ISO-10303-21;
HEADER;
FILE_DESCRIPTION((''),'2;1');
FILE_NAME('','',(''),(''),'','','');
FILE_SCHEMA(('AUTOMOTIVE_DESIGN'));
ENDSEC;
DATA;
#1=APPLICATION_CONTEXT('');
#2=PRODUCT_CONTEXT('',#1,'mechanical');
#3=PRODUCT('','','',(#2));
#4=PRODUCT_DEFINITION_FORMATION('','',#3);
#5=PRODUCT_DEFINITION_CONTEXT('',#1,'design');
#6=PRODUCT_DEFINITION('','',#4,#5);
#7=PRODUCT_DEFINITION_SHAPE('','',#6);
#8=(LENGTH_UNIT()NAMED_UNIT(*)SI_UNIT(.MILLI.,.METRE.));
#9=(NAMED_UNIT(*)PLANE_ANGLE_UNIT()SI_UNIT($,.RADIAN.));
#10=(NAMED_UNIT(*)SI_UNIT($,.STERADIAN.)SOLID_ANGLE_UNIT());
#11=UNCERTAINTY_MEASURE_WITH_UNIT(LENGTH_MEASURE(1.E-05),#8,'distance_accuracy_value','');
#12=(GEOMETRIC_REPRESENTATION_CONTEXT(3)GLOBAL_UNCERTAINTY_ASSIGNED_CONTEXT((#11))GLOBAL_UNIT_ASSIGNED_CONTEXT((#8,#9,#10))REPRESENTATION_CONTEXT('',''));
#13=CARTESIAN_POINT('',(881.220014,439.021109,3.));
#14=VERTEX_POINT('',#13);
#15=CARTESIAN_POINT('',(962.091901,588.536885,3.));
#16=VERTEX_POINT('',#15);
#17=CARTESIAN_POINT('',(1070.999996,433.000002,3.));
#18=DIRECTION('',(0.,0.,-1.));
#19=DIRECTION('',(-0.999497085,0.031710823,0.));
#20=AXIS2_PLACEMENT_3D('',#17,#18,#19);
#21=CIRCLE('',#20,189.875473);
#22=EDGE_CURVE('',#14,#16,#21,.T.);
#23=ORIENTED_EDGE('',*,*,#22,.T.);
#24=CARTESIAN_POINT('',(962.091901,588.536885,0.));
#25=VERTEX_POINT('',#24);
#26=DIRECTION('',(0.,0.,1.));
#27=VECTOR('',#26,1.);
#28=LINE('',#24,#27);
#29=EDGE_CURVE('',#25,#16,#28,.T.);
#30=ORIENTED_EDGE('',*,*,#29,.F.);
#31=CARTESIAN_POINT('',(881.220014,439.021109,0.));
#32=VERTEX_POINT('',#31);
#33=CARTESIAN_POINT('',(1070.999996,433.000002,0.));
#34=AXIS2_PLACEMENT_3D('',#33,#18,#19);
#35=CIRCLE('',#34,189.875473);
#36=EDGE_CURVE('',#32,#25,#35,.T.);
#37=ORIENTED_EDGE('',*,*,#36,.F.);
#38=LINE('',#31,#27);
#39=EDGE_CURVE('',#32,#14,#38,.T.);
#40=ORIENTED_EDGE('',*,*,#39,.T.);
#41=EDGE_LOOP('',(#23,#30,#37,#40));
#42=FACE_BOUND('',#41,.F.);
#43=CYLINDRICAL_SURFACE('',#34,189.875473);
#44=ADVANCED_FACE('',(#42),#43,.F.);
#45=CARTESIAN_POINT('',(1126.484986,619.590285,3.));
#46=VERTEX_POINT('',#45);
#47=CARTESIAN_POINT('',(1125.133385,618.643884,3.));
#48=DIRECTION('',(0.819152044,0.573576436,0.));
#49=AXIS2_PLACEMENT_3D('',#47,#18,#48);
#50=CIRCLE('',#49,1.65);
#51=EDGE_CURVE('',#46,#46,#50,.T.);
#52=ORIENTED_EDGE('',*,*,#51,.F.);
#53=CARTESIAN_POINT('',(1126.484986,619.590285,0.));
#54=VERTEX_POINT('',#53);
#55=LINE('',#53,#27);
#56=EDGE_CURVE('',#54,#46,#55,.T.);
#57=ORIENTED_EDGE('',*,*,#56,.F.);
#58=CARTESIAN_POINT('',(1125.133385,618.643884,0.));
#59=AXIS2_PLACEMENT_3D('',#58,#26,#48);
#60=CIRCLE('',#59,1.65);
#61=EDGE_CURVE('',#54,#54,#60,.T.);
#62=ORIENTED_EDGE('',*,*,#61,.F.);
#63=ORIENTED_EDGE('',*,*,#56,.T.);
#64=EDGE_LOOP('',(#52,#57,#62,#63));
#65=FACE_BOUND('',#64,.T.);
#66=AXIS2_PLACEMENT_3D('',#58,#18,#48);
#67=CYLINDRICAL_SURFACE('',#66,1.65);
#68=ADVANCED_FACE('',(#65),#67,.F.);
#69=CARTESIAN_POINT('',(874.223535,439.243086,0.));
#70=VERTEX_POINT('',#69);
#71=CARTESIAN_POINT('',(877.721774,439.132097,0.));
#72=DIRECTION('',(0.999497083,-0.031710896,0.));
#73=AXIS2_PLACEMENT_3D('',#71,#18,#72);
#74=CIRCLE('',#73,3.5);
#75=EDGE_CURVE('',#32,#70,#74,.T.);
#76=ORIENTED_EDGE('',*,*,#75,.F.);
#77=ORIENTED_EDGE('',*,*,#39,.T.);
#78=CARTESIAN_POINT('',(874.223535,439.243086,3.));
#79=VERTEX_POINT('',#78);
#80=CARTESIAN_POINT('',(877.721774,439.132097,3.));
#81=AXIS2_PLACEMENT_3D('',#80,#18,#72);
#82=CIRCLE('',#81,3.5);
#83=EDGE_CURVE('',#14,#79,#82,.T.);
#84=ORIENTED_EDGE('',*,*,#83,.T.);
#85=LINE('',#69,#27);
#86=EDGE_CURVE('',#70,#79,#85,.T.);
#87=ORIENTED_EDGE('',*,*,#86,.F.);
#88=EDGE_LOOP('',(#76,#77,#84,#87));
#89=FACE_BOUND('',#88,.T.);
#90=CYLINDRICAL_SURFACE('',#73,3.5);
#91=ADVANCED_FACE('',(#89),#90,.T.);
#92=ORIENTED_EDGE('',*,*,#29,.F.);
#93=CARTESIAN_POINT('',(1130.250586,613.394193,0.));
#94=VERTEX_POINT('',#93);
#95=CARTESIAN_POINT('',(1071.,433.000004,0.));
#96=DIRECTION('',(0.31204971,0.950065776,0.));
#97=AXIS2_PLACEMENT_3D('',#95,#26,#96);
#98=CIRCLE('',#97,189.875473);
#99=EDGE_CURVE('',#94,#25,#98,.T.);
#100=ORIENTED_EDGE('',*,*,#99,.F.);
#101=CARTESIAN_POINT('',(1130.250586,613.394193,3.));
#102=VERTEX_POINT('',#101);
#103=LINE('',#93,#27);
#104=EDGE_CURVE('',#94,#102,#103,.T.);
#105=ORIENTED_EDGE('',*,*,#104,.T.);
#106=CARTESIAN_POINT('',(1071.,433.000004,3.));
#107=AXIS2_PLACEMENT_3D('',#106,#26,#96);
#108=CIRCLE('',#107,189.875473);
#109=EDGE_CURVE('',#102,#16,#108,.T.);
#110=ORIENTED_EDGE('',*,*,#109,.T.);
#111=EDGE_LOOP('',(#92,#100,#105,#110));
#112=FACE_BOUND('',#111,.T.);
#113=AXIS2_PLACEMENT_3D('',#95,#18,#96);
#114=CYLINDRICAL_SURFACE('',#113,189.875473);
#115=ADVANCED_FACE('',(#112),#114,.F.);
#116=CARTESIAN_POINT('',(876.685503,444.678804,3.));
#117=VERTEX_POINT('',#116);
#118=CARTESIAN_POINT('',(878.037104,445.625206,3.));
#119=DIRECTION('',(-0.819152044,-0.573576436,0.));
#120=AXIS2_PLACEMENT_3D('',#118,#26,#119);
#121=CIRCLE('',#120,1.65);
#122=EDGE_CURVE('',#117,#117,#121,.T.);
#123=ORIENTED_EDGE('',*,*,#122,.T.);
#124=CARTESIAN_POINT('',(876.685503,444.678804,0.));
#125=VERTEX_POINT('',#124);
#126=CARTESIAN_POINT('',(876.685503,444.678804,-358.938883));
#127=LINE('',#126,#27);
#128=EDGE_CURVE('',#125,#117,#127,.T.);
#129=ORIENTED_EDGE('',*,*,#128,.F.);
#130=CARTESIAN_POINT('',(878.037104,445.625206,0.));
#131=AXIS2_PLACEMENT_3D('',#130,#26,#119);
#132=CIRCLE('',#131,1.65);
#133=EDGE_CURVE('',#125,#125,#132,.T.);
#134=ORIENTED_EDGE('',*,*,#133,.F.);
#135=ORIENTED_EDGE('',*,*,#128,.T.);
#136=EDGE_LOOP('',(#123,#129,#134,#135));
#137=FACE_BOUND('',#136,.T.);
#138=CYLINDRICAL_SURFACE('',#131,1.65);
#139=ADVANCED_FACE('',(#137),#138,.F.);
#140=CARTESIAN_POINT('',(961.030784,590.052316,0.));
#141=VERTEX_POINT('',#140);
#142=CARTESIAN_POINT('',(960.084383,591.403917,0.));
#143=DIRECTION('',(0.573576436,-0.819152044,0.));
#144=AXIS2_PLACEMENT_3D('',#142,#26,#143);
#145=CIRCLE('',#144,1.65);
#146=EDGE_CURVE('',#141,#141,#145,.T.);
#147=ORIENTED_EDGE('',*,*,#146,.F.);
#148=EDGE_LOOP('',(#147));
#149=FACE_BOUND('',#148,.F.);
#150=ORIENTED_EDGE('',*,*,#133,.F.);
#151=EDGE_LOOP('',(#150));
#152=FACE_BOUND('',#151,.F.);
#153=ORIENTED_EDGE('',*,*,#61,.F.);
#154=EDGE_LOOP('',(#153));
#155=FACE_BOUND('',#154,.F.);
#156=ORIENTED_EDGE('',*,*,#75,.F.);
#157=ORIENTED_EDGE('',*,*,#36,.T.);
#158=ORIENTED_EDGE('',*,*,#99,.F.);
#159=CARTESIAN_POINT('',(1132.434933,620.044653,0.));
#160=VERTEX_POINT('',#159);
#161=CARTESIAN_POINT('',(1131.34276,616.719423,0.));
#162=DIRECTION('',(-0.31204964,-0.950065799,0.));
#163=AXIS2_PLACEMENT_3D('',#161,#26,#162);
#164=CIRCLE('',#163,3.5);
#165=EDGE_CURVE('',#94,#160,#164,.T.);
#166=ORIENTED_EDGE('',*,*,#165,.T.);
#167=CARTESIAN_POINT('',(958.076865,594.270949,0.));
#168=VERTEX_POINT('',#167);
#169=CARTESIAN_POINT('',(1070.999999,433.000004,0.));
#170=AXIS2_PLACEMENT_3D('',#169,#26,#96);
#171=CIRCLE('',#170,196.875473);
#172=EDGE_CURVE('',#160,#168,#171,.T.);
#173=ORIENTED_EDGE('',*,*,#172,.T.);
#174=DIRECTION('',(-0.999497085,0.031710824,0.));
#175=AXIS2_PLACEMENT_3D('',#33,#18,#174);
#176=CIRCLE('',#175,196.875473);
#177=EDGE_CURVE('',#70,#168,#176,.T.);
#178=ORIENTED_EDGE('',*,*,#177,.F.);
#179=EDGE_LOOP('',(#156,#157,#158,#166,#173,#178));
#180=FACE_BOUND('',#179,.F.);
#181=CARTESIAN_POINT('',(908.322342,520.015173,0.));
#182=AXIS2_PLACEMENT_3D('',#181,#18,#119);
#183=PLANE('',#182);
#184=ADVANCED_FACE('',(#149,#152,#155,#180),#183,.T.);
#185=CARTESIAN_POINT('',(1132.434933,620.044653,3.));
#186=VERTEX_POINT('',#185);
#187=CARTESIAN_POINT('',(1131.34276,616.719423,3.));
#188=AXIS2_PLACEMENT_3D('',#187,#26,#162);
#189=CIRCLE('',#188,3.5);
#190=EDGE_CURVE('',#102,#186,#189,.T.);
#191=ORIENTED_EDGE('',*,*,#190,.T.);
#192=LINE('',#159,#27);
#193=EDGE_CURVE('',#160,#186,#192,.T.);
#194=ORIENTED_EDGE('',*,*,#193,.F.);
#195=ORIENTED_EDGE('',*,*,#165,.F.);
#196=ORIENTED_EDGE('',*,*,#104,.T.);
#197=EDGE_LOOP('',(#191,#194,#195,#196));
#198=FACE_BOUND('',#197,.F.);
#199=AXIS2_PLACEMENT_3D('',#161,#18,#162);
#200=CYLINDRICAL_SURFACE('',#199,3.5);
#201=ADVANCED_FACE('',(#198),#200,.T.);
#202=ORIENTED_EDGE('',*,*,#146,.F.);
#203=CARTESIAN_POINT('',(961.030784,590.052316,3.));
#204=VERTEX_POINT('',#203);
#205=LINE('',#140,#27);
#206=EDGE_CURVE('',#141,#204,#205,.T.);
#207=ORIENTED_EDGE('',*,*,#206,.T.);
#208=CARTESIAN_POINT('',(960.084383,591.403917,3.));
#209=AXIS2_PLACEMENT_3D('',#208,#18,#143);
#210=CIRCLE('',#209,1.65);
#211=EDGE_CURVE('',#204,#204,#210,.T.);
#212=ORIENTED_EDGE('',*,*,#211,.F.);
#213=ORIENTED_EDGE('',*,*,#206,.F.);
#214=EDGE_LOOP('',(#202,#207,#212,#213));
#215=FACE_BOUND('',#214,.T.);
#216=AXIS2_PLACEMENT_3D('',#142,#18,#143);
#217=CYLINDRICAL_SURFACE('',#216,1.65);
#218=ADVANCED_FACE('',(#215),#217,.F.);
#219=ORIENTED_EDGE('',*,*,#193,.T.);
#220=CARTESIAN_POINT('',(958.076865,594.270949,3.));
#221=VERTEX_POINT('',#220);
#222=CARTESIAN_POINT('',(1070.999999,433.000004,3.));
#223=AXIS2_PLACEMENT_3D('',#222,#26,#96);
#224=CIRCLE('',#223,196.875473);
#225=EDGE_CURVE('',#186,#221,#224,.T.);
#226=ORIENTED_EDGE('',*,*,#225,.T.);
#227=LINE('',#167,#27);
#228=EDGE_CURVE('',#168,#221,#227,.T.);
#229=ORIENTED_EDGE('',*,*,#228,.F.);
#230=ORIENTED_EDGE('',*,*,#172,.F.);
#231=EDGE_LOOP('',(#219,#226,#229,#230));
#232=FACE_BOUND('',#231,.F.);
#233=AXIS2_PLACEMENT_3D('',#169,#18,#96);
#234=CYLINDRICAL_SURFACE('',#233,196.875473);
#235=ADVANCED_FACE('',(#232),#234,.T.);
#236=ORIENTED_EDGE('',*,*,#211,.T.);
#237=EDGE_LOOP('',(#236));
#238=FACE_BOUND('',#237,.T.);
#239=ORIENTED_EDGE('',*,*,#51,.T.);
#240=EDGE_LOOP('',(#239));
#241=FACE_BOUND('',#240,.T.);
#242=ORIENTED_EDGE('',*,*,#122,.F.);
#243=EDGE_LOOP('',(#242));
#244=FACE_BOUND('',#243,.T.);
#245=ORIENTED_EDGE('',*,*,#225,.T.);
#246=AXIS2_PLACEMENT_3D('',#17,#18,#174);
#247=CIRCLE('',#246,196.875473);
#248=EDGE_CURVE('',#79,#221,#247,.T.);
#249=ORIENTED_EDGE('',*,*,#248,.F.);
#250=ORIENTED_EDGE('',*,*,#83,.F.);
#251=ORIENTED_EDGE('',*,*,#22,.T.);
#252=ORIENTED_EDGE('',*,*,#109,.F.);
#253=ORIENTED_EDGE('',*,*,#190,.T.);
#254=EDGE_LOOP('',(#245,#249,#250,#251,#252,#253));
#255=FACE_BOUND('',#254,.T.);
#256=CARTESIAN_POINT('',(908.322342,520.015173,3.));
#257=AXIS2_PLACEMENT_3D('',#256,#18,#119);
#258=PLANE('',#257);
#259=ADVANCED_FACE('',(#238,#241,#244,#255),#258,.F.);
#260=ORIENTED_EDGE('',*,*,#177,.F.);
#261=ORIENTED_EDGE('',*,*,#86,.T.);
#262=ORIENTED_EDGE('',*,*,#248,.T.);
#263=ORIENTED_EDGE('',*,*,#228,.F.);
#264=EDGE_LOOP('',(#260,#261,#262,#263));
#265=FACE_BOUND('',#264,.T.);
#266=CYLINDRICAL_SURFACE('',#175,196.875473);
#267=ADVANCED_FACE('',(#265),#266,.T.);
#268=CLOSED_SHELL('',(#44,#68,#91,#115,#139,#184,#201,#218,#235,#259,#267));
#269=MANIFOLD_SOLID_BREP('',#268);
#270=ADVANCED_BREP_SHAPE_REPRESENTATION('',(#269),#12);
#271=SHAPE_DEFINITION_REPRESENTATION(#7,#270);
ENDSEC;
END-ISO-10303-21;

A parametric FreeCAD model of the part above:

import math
import FreeCAD as App
import Part
import Sketcher

V = App.Vector

doc = App.newDocument("Part")
body = doc.addObject("PartDesign::Body", "Body")

# Sketch on XY plane
sketch1 = body.newObject("Sketcher::SketchObject", "Sketch")
sketch1.AttachmentSupport = (doc.getObject("XY_Plane"), [""])
sketch1.MapMode = "FlatFace"
sketch1.addGeometry(Part.ArcOfCircle(Part.Circle(V(0.000002, 0.000004, 0), V(0, 0, 1), 189.875473), math.radians(36.817201), math.radians(90.000001)), False)
sketch1.addGeometry(Part.ArcOfCircle(Part.Circle(V(154.807027, 115.882956, 0), V(0, 0, 1), 3.5), math.radians(-143.182795), math.radians(36.817205)), False)
sketch1.addGeometry(Part.ArcOfCircle(Part.Circle(V(0.000002, 0.000004, 0), V(0, 0, 1), 196.875473), math.radians(36.817201), math.radians(90.000001)), False)
sketch1.addGeometry(Part.LineSegment(V(0, 196.875477, 0), V(0, 189.875477, 0)), False)
sketch1.addConstraint(Sketcher.Constraint("Tangent", 0, 1, 1, 1))
sketch1.addConstraint(Sketcher.Constraint("Tangent", 1, 2, 2, 1))
sketch1.addConstraint(Sketcher.Constraint("Coincident", 2, 2, 3, 1))
sketch1.addConstraint(Sketcher.Constraint("Coincident", 3, 2, 0, 2))
sketch1.addConstraint(Sketcher.Constraint("Vertical", 3))
sketch1.addConstraint(Sketcher.Constraint("Coincident", 0, 3, -1, 1))
sketch1.addConstraint(Sketcher.Constraint("Coincident", 2, 3, -1, 1))
sketch1.addConstraint(Sketcher.Constraint("PointOnObject", 2, 2, -2))
sketch1.addConstraint(Sketcher.Constraint("Radius", 1, 3.5))
sketch1.addConstraint(Sketcher.Constraint("Radius", 0, 189.875473))
sketch1.addConstraint(Sketcher.Constraint("DistanceY", -1, 1, 1, 2, 117.98038))
pad1 = body.newObject("PartDesign::Pad", "Pad")
pad1.Profile = sketch1
pad1.Length = 3

# Sketch on XY plane
sketch2 = body.newObject("Sketcher::SketchObject", "Sketch001")
sketch2.AttachmentSupport = (doc.getObject("XY_Plane"), [""])
sketch2.MapMode = "FlatFace"
sketch2.addGeometry(Part.Circle(V(150.82443, 121.020933, 0), V(0, 0, 1), 1.65), False)
sketch2.addGeometry(Part.ArcOfCircle(Part.Circle(V(0, 193.375477, 0), V(0, 0, 1), 1.65), math.radians(-90), math.radians(90)), False)
sketch2.addGeometry(Part.LineSegment(V(0, 195.025477, 0), V(0, 191.725477, 0)), False)
sketch2.addConstraint(Sketcher.Constraint("Coincident", 1, 1, 2, 2))
sketch2.addConstraint(Sketcher.Constraint("Coincident", 2, 1, 1, 2))
sketch2.addConstraint(Sketcher.Constraint("Vertical", 2))
sketch2.addConstraint(Sketcher.Constraint("Equal", 0, 1))
sketch2.addConstraint(Sketcher.Constraint("PointOnObject", 1, 3, -2))
sketch2.addConstraint(Sketcher.Constraint("PointOnObject", 1, 1, -2))
sketch2.addConstraint(Sketcher.Constraint("Diameter", 0, 3.3))
sketch2.addConstraint(Sketcher.Constraint("DistanceX", -1, 1, 0, 3, 150.82443))
sketch2.addConstraint(Sketcher.Constraint("DistanceY", -1, 1, 0, 3, 121.020933))
sketch2.addConstraint(Sketcher.Constraint("DistanceY", -1, 1, 1, 3, 193.375477))
pocket1 = body.newObject("PartDesign::Pocket", "Pocket")
pocket1.Profile = sketch2
pocket1.Type = "ThroughAll"
pocket1.Midplane = True
doc.recompute()

mirrored = body.newObject("PartDesign::Mirrored", "Mirrored")
mirrored.Originals = [pad1, pocket1]
mirrored.MirrorPlane = (doc.getObject("YZ_Plane"), [""])
body.Tip = mirrored
body2 = doc.addObject("PartDesign::Body", "Body001")
doc.recompute()

body.Placement = App.Placement(V(0, 0, 0), App.Rotation(V(0, 0, 1), 60))
boolean = body2.newObject("PartDesign::Boolean", "Boolean")
boolean.Type = "Fuse"
boolean.addObjects([body])
body3 = doc.addObject("PartDesign::Body", "Body002")
doc.recompute()

body2.Placement = App.Placement(V(1071, 433, 0), App.Rotation(V(0, 0, -1), 25))
boolean2 = body3.newObject("PartDesign::Boolean", "Boolean001")
boolean2.Type = "Fuse"
boolean2.addObjects([body2])

doc.recompute()
